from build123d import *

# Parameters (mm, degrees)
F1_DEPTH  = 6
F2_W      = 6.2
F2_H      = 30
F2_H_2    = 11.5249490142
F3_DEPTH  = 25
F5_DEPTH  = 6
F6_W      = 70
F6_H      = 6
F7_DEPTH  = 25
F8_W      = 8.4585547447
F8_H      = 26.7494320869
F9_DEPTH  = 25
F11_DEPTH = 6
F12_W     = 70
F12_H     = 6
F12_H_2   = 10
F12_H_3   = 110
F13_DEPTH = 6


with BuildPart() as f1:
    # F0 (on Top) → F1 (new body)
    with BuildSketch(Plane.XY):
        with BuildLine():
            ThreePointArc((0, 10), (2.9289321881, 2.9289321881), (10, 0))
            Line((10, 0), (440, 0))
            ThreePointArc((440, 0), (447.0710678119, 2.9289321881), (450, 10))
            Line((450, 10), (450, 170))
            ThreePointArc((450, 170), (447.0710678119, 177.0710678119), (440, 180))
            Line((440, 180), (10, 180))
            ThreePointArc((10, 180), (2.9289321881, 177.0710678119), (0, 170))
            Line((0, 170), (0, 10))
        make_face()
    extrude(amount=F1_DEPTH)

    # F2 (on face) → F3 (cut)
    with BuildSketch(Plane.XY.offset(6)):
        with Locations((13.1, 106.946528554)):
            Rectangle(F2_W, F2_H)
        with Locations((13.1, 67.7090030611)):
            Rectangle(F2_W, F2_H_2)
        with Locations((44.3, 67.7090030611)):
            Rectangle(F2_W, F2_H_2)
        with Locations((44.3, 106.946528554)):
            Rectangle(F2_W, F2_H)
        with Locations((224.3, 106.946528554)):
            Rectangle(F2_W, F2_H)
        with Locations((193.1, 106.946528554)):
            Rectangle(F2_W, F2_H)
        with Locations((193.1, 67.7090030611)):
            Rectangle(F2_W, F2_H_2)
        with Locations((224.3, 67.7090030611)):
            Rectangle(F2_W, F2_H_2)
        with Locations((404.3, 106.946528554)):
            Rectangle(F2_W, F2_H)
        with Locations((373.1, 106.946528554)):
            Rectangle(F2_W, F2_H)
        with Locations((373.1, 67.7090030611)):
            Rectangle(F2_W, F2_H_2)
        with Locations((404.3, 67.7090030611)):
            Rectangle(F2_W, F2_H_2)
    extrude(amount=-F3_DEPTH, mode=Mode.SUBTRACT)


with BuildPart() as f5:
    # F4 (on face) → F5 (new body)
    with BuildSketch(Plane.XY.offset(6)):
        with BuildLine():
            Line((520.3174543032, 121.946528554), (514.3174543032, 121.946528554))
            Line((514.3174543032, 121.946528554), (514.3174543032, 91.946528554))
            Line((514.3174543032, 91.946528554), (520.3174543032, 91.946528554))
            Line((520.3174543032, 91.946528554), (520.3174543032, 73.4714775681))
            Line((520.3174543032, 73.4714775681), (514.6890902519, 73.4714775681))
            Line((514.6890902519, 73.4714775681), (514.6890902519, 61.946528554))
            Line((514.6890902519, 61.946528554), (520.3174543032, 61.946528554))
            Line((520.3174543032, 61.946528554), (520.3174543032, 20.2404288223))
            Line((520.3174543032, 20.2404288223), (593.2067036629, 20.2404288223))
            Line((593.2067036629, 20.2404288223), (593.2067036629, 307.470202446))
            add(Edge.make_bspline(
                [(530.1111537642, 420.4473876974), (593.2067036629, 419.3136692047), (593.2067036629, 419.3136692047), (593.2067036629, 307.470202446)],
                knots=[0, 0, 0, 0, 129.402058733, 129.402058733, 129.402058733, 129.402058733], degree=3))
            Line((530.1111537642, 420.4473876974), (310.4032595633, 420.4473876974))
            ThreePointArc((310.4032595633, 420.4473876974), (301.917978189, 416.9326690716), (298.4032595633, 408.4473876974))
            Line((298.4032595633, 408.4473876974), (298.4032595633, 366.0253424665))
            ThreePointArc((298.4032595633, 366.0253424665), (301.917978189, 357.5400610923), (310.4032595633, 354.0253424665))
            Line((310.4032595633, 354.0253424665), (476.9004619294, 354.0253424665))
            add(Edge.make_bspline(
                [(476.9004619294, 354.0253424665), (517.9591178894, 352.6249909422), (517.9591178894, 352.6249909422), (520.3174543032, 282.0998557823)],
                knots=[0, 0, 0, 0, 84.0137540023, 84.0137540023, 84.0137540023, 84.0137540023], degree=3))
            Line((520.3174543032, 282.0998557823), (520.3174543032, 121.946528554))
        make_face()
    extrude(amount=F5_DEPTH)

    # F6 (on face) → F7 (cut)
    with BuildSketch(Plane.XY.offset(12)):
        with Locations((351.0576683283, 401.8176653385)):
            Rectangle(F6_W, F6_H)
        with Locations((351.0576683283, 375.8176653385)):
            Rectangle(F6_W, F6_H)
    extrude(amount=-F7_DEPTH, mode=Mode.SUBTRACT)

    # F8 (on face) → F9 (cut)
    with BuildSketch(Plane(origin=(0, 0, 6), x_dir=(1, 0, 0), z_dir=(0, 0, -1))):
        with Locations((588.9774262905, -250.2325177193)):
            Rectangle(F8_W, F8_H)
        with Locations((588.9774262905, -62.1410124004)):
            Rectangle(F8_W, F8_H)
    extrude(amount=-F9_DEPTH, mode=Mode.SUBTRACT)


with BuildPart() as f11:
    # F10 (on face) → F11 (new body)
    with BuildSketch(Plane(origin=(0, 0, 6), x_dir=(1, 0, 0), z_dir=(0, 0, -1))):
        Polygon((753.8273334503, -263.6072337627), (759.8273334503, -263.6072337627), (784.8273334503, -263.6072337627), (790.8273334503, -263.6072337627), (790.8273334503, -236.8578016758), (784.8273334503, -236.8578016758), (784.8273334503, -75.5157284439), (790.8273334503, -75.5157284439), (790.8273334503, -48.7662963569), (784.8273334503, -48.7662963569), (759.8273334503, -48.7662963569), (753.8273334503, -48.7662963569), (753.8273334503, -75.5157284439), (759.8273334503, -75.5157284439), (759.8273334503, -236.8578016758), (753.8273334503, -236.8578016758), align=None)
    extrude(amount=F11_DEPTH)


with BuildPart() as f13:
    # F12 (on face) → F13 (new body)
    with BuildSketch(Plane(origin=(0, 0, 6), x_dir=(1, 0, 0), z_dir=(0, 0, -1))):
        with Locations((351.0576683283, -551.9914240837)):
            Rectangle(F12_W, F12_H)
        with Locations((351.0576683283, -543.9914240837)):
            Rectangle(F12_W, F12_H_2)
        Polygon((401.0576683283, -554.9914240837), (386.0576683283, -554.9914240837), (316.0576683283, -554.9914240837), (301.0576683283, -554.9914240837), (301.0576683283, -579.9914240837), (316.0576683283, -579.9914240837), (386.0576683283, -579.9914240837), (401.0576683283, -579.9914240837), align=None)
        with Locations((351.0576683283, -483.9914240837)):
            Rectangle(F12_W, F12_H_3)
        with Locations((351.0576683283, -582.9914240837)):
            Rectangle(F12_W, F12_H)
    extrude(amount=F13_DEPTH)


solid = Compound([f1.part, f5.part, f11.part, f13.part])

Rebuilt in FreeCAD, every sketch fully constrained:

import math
import FreeCAD as App
import Part
import Sketcher
from FreeCAD import Vector


def add_polygon(sketch, points):
    """Adds a closed chain of lines whose ends are joined by coincident constraints."""
    first, n = sketch.GeometryCount, len(points)
    for a, b in zip(points, points[1:] + points[:1]):
        sketch.addGeometry(Part.LineSegment(App.Vector(*a, 0), App.Vector(*b, 0)), False)
    for i in range(n):
        sketch.addConstraint(Sketcher.Constraint("Coincident", first + i, 2, first + (i + 1) % n, 1))

doc = App.newDocument("Part")
body = doc.addObject("PartDesign::Body", "Body")

sketch1 = doc.addObject("Sketcher::SketchObject", "Sketch")
body.addObject(sketch1)
sketch1.AttachmentSupport = (doc.XY_Plane, [""])
sketch1.MapMode = "FlatFace"
sketch1.addGeometry(Part.ArcOfCircle(Part.Circle(Vector(10, 10, 0), Vector(0, 0, 1), 10), math.radians(180), math.radians(270)), False)
sketch1.addGeometry(Part.LineSegment(Vector(10, 0, 0), Vector(440, 0, 0)), False)
sketch1.addGeometry(Part.ArcOfCircle(Part.Circle(Vector(440, 10, 0), Vector(0, 0, 1), 10), math.radians(-90), math.radians(0)), False)
sketch1.addGeometry(Part.LineSegment(Vector(450, 10, 0), Vector(450, 170, 0)), False)
sketch1.addGeometry(Part.ArcOfCircle(Part.Circle(Vector(440, 170, 0), Vector(0, 0, 1), 10), math.radians(0), math.radians(90)), False)
sketch1.addGeometry(Part.LineSegment(Vector(440, 180, 0), Vector(10, 180, 0)), False)
sketch1.addGeometry(Part.ArcOfCircle(Part.Circle(Vector(10, 170, 0), Vector(0, 0, 1), 10), math.radians(90), math.radians(180)), False)
sketch1.addGeometry(Part.LineSegment(Vector(0, 170, 0), Vector(0, 10, 0)), False)
sketch1.addConstraint(Sketcher.Constraint("Tangent", 0, 2, 1, 1))
sketch1.addConstraint(Sketcher.Constraint("Tangent", 1, 2, 2, 1))
sketch1.addConstraint(Sketcher.Constraint("Tangent", 2, 2, 3, 1))
sketch1.addConstraint(Sketcher.Constraint("Tangent", 3, 2, 4, 1))
sketch1.addConstraint(Sketcher.Constraint("Tangent", 4, 2, 5, 1))
sketch1.addConstraint(Sketcher.Constraint("Tangent", 5, 2, 6, 1))
sketch1.addConstraint(Sketcher.Constraint("Tangent", 6, 2, 7, 1))
sketch1.addConstraint(Sketcher.Constraint("Tangent", 7, 2, 0, 1))
sketch1.addConstraint(Sketcher.Constraint("Horizontal", 1))
sketch1.addConstraint(Sketcher.Constraint("Vertical", 3))
sketch1.addConstraint(Sketcher.Constraint("Horizontal", 5))
sketch1.addConstraint(Sketcher.Constraint("Vertical", 7))
sketch1.addConstraint(Sketcher.Constraint("Equal", 0, 2))
sketch1.addConstraint(Sketcher.Constraint("Equal", 2, 4))
sketch1.addConstraint(Sketcher.Constraint("Equal", 4, 6))
sketch1.addConstraint(Sketcher.Constraint("PointOnObject", 0, 2, -1))
sketch1.addConstraint(Sketcher.Constraint("PointOnObject", 6, 2, -2))
sketch1.addConstraint(Sketcher.Constraint("Radius", 0, 10.0))
sketch1.addConstraint(Sketcher.Constraint("DistanceX", 1, 1, 1, 2, 430.0))
sketch1.addConstraint(Sketcher.Constraint("DistanceY", 3, 1, 3, 2, 160.0))
pad1 = doc.addObject("PartDesign::Pad", "Pad")
body.addObject(pad1)
pad1.Profile = sketch1
pad1.Length = 6

sketch2 = doc.addObject("Sketcher::SketchObject", "Sketch001")
body.addObject(sketch2)
sketch2.AttachmentSupport = (doc.XY_Plane, [""])
sketch2.MapMode = "FlatFace"
sketch2.AttachmentOffset = App.Placement(Vector(0, 0, 6), App.Rotation())
add_polygon(sketch2, [(10, 122), (10, 92), (16, 92), (16, 122)])
add_polygon(sketch2, [(10, 73), (10, 62), (16, 62), (16, 73)])
add_polygon(sketch2, [(41, 73), (41, 62), (47, 62), (47, 73)])
add_polygon(sketch2, [(41, 122), (41, 92), (47, 92), (47, 122)])
add_polygon(sketch2, [(221, 122), (221, 92), (227, 92), (227, 122)])
add_polygon(sketch2, [(190, 122), (190, 92), (196, 92), (196, 122)])
add_polygon(sketch2, [(190, 73), (190, 62), (196, 62), (196, 73)])
add_polygon(sketch2, [(221, 73), (221, 62), (227, 62), (227, 73)])
add_polygon(sketch2, [(401, 122), (401, 92), (407, 92), (407, 122)])
add_polygon(sketch2, [(370, 122), (370, 92), (376, 92), (376, 122)])
add_polygon(sketch2, [(370, 73), (370, 62), (376, 62), (376, 73)])
add_polygon(sketch2, [(401, 73), (401, 62), (407, 62), (407, 73)])
sketch2.addConstraint(Sketcher.Constraint("Vertical", 0))
sketch2.addConstraint(Sketcher.Constraint("Horizontal", 1))
sketch2.addConstraint(Sketcher.Constraint("Vertical", 2))
sketch2.addConstraint(Sketcher.Constraint("Horizontal", 3))
sketch2.addConstraint(Sketcher.Constraint("Vertical", 4))
sketch2.addConstraint(Sketcher.Constraint("Horizontal", 5))
sketch2.addConstraint(Sketcher.Constraint("Vertical", 6))
sketch2.addConstraint(Sketcher.Constraint("Horizontal", 7))
sketch2.addConstraint(Sketcher.Constraint("Vertical", 8))
sketch2.addConstraint(Sketcher.Constraint("Horizontal", 9))
sketch2.addConstraint(Sketcher.Constraint("Vertical", 10))
sketch2.addConstraint(Sketcher.Constraint("Horizontal", 11))
sketch2.addConstraint(Sketcher.Constraint("Vertical", 12))
sketch2.addConstraint(Sketcher.Constraint("Horizontal", 13))
sketch2.addConstraint(Sketcher.Constraint("Vertical", 14))
sketch2.addConstraint(Sketcher.Constraint("Horizontal", 15))
sketch2.addConstraint(Sketcher.Constraint("Vertical", 16))
sketch2.addConstraint(Sketcher.Constraint("Horizontal", 17))
sketch2.addConstraint(Sketcher.Constraint("Vertical", 18))
sketch2.addConstraint(Sketcher.Constraint("Horizontal", 19))
sketch2.addConstraint(Sketcher.Constraint("Vertical", 20))
sketch2.addConstraint(Sketcher.Constraint("Horizontal", 21))
sketch2.addConstraint(Sketcher.Constraint("Vertical", 22))
sketch2.addConstraint(Sketcher.Constraint("Horizontal", 23))
sketch2.addConstraint(Sketcher.Constraint("Vertical", 24))
sketch2.addConstraint(Sketcher.Constraint("Horizontal", 25))
sketch2.addConstraint(Sketcher.Constraint("Vertical", 26))
sketch2.addConstraint(Sketcher.Constraint("Horizontal", 27))
sketch2.addConstraint(Sketcher.Constraint("Vertical", 28))
sketch2.addConstraint(Sketcher.Constraint("Horizontal", 29))
sketch2.addConstraint(Sketcher.Constraint("Vertical", 30))
sketch2.addConstraint(Sketcher.Constraint("Horizontal", 31))
sketch2.addConstraint(Sketcher.Constraint("Vertical", 32))
sketch2.addConstraint(Sketcher.Constraint("Horizontal", 33))
sketch2.addConstraint(Sketcher.Constraint("Vertical", 34))
sketch2.addConstraint(Sketcher.Constraint("Horizontal", 35))
sketch2.addConstraint(Sketcher.Constraint("Vertical", 36))
sketch2.addConstraint(Sketcher.Constraint("Horizontal", 37))
sketch2.addConstraint(Sketcher.Constraint("Vertical", 38))
sketch2.addConstraint(Sketcher.Constraint("Horizontal", 39))
sketch2.addConstraint(Sketcher.Constraint("Vertical", 40))
sketch2.addConstraint(Sketcher.Constraint("Horizontal", 41))
sketch2.addConstraint(Sketcher.Constraint("Vertical", 42))
sketch2.addConstraint(Sketcher.Constraint("Horizontal", 43))
sketch2.addConstraint(Sketcher.Constraint("Vertical", 44))
sketch2.addConstraint(Sketcher.Constraint("Horizontal", 45))
sketch2.addConstraint(Sketcher.Constraint("Vertical", 46))
sketch2.addConstraint(Sketcher.Constraint("Horizontal", 47))
sketch2.addConstraint(Sketcher.Constraint("Horizontal", 5, 2, 8, 2))
sketch2.addConstraint(Sketcher.Constraint("Horizontal", 7, 2, 10, 2))
sketch2.addConstraint(Sketcher.Constraint("Horizontal", 1, 2, 12, 2))
sketch2.addConstraint(Sketcher.Constraint("Horizontal", 3, 2, 14, 2))
sketch2.addConstraint(Sketcher.Constraint("Horizontal", 13, 2, 16, 2))
sketch2.addConstraint(Sketcher.Constraint("Horizontal", 15, 2, 18, 2))
sketch2.addConstraint(Sketcher.Constraint("Horizontal", 17, 2, 20, 2))
sketch2.addConstraint(Sketcher.Constraint("Horizontal", 19, 2, 22, 2))
sketch2.addConstraint(Sketcher.Constraint("Horizontal", 9, 2, 24, 2))
sketch2.addConstraint(Sketcher.Constraint("Horizontal", 11, 2, 26, 2))
sketch2.addConstraint(Sketcher.Constraint("Horizontal", 25, 2, 28, 2))
sketch2.addConstraint(Sketcher.Constraint("Horizontal", 27, 2, 30, 2))
sketch2.addConstraint(Sketcher.Constraint("Horizontal", 21, 2, 32, 2))
sketch2.addConstraint(Sketcher.Constraint("Horizontal", 23, 2, 34, 2))
sketch2.addConstraint(Sketcher.Constraint("Horizontal", 33, 2, 36, 2))
sketch2.addConstraint(Sketcher.Constraint("Horizontal", 35, 2, 38, 2))
sketch2.addConstraint(Sketcher.Constraint("Horizontal", 29, 2, 40, 2))
sketch2.addConstraint(Sketcher.Constraint("Horizontal", 31, 2, 42, 2))
sketch2.addConstraint(Sketcher.Constraint("Horizontal", 41, 2, 44, 2))
sketch2.addConstraint(Sketcher.Constraint("Horizontal", 43, 2, 46, 2))
sketch2.addConstraint(Sketcher.Constraint("Vertical", 3, 2, 4, 2))
sketch2.addConstraint(Sketcher.Constraint("Vertical", 2, 2, 5, 2))
sketch2.addConstraint(Sketcher.Constraint("Vertical", 11, 2, 12, 2))
sketch2.addConstraint(Sketcher.Constraint("Vertical", 10, 2, 13, 2))
sketch2.addConstraint(Sketcher.Constraint("Vertical", 23, 2, 24, 2))
sketch2.addConstraint(Sketcher.Constraint("Vertical", 22, 2, 25, 2))
sketch2.addConstraint(Sketcher.Constraint("Vertical", 19, 2, 28, 2))
sketch2.addConstraint(Sketcher.Constraint("Vertical", 18, 2, 29, 2))
sketch2.addConstraint(Sketcher.Constraint("Vertical", 39, 2, 40, 2))
sketch2.addConstraint(Sketcher.Constraint("Vertical", 38, 2, 41, 2))
sketch2.addConstraint(Sketcher.Constraint("Vertical", 35, 2, 44, 2))
sketch2.addConstraint(Sketcher.Constraint("Vertical", 34, 2, 45, 2))
sketch2.addConstraint(Sketcher.Constraint("Equal", 7, 9))
sketch2.addConstraint(Sketcher.Constraint("Equal", 15, 17))
sketch2.addConstraint(Sketcher.Constraint("Equal", 19, 21))
sketch2.addConstraint(Sketcher.Constraint("Equal", 31, 33))
sketch2.addConstraint(Sketcher.Constraint("Equal", 35, 37))
sketch2.addConstraint(Sketcher.Constraint("DistanceY", 0, 2, 0, 1, 30.0))
sketch2.addConstraint(Sketcher.Constraint("DistanceX", 1, 1, 1, 2, 6.2))
sketch2.addConstraint(Sketcher.Constraint("DistanceX", -1, 1, 0, 2, 10.0))
sketch2.addConstraint(Sketcher.Constraint("DistanceX", -1, 1, 20, 2, 190.0))
sketch2.addConstraint(Sketcher.Constraint("DistanceX", -1, 1, 36, 2, 370.0))
sketch2.addConstraint(Sketcher.Constraint("DistanceY", 4, 2, 0, 2, 30.0))
sketch2.addConstraint(Sketcher.Constraint("DistanceX", 5, 2, 8, 2, 25.0))
sketch2.addConstraint(Sketcher.Constraint("DistanceX", 12, 2, 16, 2, 180.0))
sketch2.addConstraint(Sketcher.Constraint("DistanceX", 16, 2, 32, 2, 180.0))
sketch2.addConstraint(Sketcher.Constraint("DistanceY", 4, 2, 4, 1, 11.524949))
sketch2.addConstraint(Sketcher.Constraint("DistanceY", -1, 1, 0, 2, 91.946529))
pocket1 = doc.addObject("PartDesign::Pocket", "Pocket")
body.addObject(pocket1)
pocket1.Profile = sketch2
pocket1.Length = 25
body2 = doc.addObject("PartDesign::Body", "Body001")

sketch3 = doc.addObject("Sketcher::SketchObject", "Sketch002")
body2.addObject(sketch3)
sketch3.AttachmentSupport = (doc.getObject("XY_Plane001"), [""])
sketch3.MapMode = "FlatFace"
sketch3.AttachmentOffset = App.Placement(Vector(0, 0, 6), App.Rotation())
sketch3.addGeometry(Part.LineSegment(Vector(520.317454, 121.946529, 0), Vector(514.317454, 121.946529, 0)), False)
sketch3.addGeometry(Part.LineSegment(Vector(514.317454, 121.946529, 0), Vector(514.317454, 91.946529, 0)), False)
sketch3.addGeometry(Part.LineSegment(Vector(514.317454, 91.946529, 0), Vector(520.317454, 91.946529, 0)), False)
sketch3.addGeometry(Part.LineSegment(Vector(520.317454, 91.946529, 0), Vector(520.317454, 73.471478, 0)), False)
sketch3.addGeometry(Part.LineSegment(Vector(520.317454, 73.471478, 0), Vector(514.68909, 73.471478, 0)), False)
sketch3.addGeometry(Part.LineSegment(Vector(514.68909, 73.471478, 0), Vector(514.68909, 61.946529, 0)), False)
sketch3.addGeometry(Part.LineSegment(Vector(514.68909, 61.946529, 0), Vector(520.317454, 61.946529, 0)), False)
sketch3.addGeometry(Part.LineSegment(Vector(520.317454, 61.946529, 0), Vector(520.317454, 20.240429, 0)), False)
sketch3.addGeometry(Part.LineSegment(Vector(520.317454, 20.240429, 0), Vector(593.206704, 20.240429, 0)), False)
sketch3.addGeometry(Part.LineSegment(Vector(593.206704, 20.240429, 0), Vector(593.206704, 307.470202, 0)), False)
sketch3.addGeometry(Part.BSplineCurve([Vector(530.111154, 420.447388, 0), Vector(593.206704, 419.313669, 0), Vector(593.206704, 419.313669, 0), Vector(593.206704, 307.470202, 0)], [4, 4], [0, 129.402058733], False, 3, [1, 1, 1, 1], False), False)
sketch3.addGeometry(Part.LineSegment(Vector(530.111154, 420.447388, 0), Vector(310.40326, 420.447388, 0)), False)
sketch3.addGeometry(Part.ArcOfCircle(Part.Circle(Vector(310.40326, 408.447388, 0), Vector(0, 0, 1), 12), math.radians(90), math.radians(180)), False)
sketch3.addGeometry(Part.LineSegment(Vector(298.40326, 408.447388, 0), Vector(298.40326, 366.025342, 0)), False)
sketch3.addGeometry(Part.ArcOfCircle(Part.Circle(Vector(310.40326, 366.025342, 0), Vector(0, 0, 1), 12), math.radians(180), math.radians(270)), False)
sketch3.addGeometry(Part.LineSegment(Vector(310.40326, 354.025342, 0), Vector(476.900462, 354.025342, 0)), False)
sketch3.addGeometry(Part.BSplineCurve([Vector(476.900462, 354.025342, 0), Vector(517.959118, 352.624991, 0), Vector(517.959118, 352.624991, 0), Vector(520.317454, 282.099856, 0)], [4, 4], [0, 84.013754002], False, 3, [1, 1, 1, 1], False), False)
sketch3.addGeometry(Part.LineSegment(Vector(520.317454, 282.099856, 0), Vector(520.317454, 121.946529, 0)), False)
sketch3.addConstraint(Sketcher.Constraint("Block", 10))
sketch3.addConstraint(Sketcher.Constraint("Block", 16))
sketch3.addConstraint(Sketcher.Constraint("Coincident", 0, 2, 1, 1))
sketch3.addConstraint(Sketcher.Constraint("Coincident", 1, 2, 2, 1))
sketch3.addConstraint(Sketcher.Constraint("Coincident", 2, 2, 3, 1))
sketch3.addConstraint(Sketcher.Constraint("Coincident", 3, 2, 4, 1))
sketch3.addConstraint(Sketcher.Constraint("Coincident", 4, 2, 5, 1))
sketch3.addConstraint(Sketcher.Constraint("Coincident", 5, 2, 6, 1))
sketch3.addConstraint(Sketcher.Constraint("Coincident", 6, 2, 7, 1))
sketch3.addConstraint(Sketcher.Constraint("Coincident", 7, 2, 8, 1))
sketch3.addConstraint(Sketcher.Constraint("Coincident", 8, 2, 9, 1))
sketch3.addConstraint(Sketcher.Constraint("Coincident", 9, 2, 10, 2))
sketch3.addConstraint(Sketcher.Constraint("Coincident", 10, 1, 11, 1))
sketch3.addConstraint(Sketcher.Constraint("Tangent", 11, 2, 12, 1))
sketch3.addConstraint(Sketcher.Constraint("Tangent", 12, 2, 13, 1))
sketch3.addConstraint(Sketcher.Constraint("Tangent", 13, 2, 14, 1))
sketch3.addConstraint(Sketcher.Constraint("Tangent", 14, 2, 15, 1))
sketch3.addConstraint(Sketcher.Constraint("Coincident", 15, 2, 16, 1))
sketch3.addConstraint(Sketcher.Constraint("Coincident", 16, 2, 17, 1))
sketch3.addConstraint(Sketcher.Constraint("Coincident", 17, 2, 0, 1))
sketch3.addConstraint(Sketcher.Constraint("Horizontal", 0))
sketch3.addConstraint(Sketcher.Constraint("Vertical", 1))
sketch3.addConstraint(Sketcher.Constraint("Horizontal", 2))
sketch3.addConstraint(Sketcher.Constraint("Vertical", 3))
sketch3.addConstraint(Sketcher.Constraint("Horizontal", 4))
sketch3.addConstraint(Sketcher.Constraint("Vertical", 5))
sketch3.addConstraint(Sketcher.Constraint("Horizontal", 6))
sketch3.addConstraint(Sketcher.Constraint("Vertical", 7))
sketch3.addConstraint(Sketcher.Constraint("Horizontal", 8))
sketch3.addConstraint(Sketcher.Constraint("Vertical", 9))
sketch3.addConstraint(Sketcher.Constraint("Horizontal", 11))
sketch3.addConstraint(Sketcher.Constraint("Vertical", 13))
sketch3.addConstraint(Sketcher.Constraint("Horizontal", 15))
sketch3.addConstraint(Sketcher.Constraint("Vertical", 17))
sketch3.addConstraint(Sketcher.Constraint("Equal", 12, 14))
sketch3.addConstraint(Sketcher.Constraint("Vertical", 3, 2, 6, 2))
sketch3.addConstraint(Sketcher.Constraint("Vertical", 7, 2, 17, 2))
sketch3.addConstraint(Sketcher.Constraint("Radius", 12, 12.0))
sketch3.addConstraint(Sketcher.Constraint("DistanceX", 0, 2, 0, 1, 6.0))
sketch3.addConstraint(Sketcher.Constraint("DistanceY", 1, 2, 1, 1, 30.0))
sketch3.addConstraint(Sketcher.Constraint("DistanceY", 5, 2, 1, 2, 30.0))
sketch3.addConstraint(Sketcher.Constraint("DistanceY", 7, 2, 7, 1, 41.7061))
sketch3.addConstraint(Sketcher.Constraint("DistanceY", 3, 2, 3, 1, 18.475051))
sketch3.addConstraint(Sketcher.Constraint("DistanceX", 4, 2, 4, 1, 5.628364))
sketch3.addConstraint(Sketcher.Constraint("DistanceX", 11, 2, 11, 1, 219.707894))
sketch3.addConstraint(Sketcher.Constraint("DistanceY", 9, 1, 9, 2, 287.229774))
pad2 = doc.addObject("PartDesign::Pad", "Pad001")
body2.addObject(pad2)
pad2.Profile = sketch3
pad2.Length = 6

sketch4 = doc.addObject("Sketcher::SketchObject", "Sketch003")
body2.addObject(sketch4)
sketch4.AttachmentSupport = (doc.getObject("XY_Plane001"), [""])
sketch4.MapMode = "FlatFace"
sketch4.AttachmentOffset = App.Placement(Vector(0, 0, 12), App.Rotation())
add_polygon(sketch4, [(316, 405), (316, 399), (386, 399), (386, 405)])
add_polygon(sketch4, [(316, 379), (316, 373), (386, 373), (386, 379)])
sketch4.addConstraint(Sketcher.Constraint("Vertical", 0))
sketch4.addConstraint(Sketcher.Constraint("Horizontal", 1))
sketch4.addConstraint(Sketcher.Constraint("Vertical", 2))
sketch4.addConstraint(Sketcher.Constraint("Horizontal", 3))
sketch4.addConstraint(Sketcher.Constraint("Vertical", 4))
sketch4.addConstraint(Sketcher.Constraint("Horizontal", 5))
sketch4.addConstraint(Sketcher.Constraint("Vertical", 6))
sketch4.addConstraint(Sketcher.Constraint("Horizontal", 7))
sketch4.addConstraint(Sketcher.Constraint("Vertical", 3, 2, 4, 2))
sketch4.addConstraint(Sketcher.Constraint("Vertical", 2, 2, 5, 2))
sketch4.addConstraint(Sketcher.Constraint("Equal", 2, 4))
sketch4.addConstraint(Sketcher.Constraint("DistanceX", 1, 1, 1, 2, 70.0))
sketch4.addConstraint(Sketcher.Constraint("DistanceY", 0, 2, 0, 1, 6.0))
sketch4.addConstraint(Sketcher.Constraint("DistanceY", 4, 2, 0, 2, 26.0))
sketch4.addConstraint(Sketcher.Constraint("DistanceX", -1, 1, 0, 2, 316.057668))
sketch4.addConstraint(Sketcher.Constraint("DistanceY", -1, 1, 0, 2, 398.817665))
pocket2 = doc.addObject("PartDesign::Pocket", "Pocket001")
body2.addObject(pocket2)
pocket2.Profile = sketch4
pocket2.Length = 25

sketch5 = doc.addObject("Sketcher::SketchObject", "Sketch004")
body2.addObject(sketch5)
sketch5.AttachmentSupport = (doc.getObject("XY_Plane001"), [""])
sketch5.MapMode = "FlatFace"
sketch5.AttachmentOffset = App.Placement(Vector(0, 0, 6), App.Rotation())
add_polygon(sketch5, [(585, 237), (585, 264), (593, 264), (593, 237)])
add_polygon(sketch5, [(585, 49), (585, 76), (593, 76), (593, 49)])
sketch5.addConstraint(Sketcher.Constraint("Vertical", 0))
sketch5.addConstraint(Sketcher.Constraint("Horizontal", 1))
sketch5.addConstraint(Sketcher.Constraint("Vertical", 2))
sketch5.addConstraint(Sketcher.Constraint("Horizontal", 3))
sketch5.addConstraint(Sketcher.Constraint("Vertical", 4))
sketch5.addConstraint(Sketcher.Constraint("Horizontal", 5))
sketch5.addConstraint(Sketcher.Constraint("Vertical", 6))
sketch5.addConstraint(Sketcher.Constraint("Horizontal", 7))
sketch5.addConstraint(Sketcher.Constraint("Vertical", 3, 2, 4, 2))
sketch5.addConstraint(Sketcher.Constraint("Vertical", 2, 2, 5, 2))
sketch5.addConstraint(Sketcher.Constraint("Equal", 2, 4))
sketch5.addConstraint(Sketcher.Constraint("DistanceY", -1, 1, 2, 2, 236.857802))
sketch5.addConstraint(Sketcher.Constraint("DistanceX", 1, 1, 1, 2, 8.458555))
sketch5.addConstraint(Sketcher.Constraint("DistanceY", 0, 1, 0, 2, 26.749432))
sketch5.addConstraint(Sketcher.Constraint("DistanceX", -1, 1, 0, 2, 584.748149))
sketch5.addConstraint(Sketcher.Constraint("DistanceY", -1, 1, 4, 2, 75.515728))
pocket3 = doc.addObject("PartDesign::Pocket", "Pocket002")
body2.addObject(pocket3)
pocket3.Profile = sketch5
pocket3.Length = 25
pocket3.Reversed = True
body3 = doc.addObject("PartDesign::Body", "Body002")

sketch6 = doc.addObject("Sketcher::SketchObject", "Sketch005")
body3.addObject(sketch6)
sketch6.AttachmentSupport = (doc.getObject("XY_Plane002"), [""])
sketch6.MapMode = "FlatFace"
sketch6.AttachmentOffset = App.Placement(Vector(0, 0, 6), App.Rotation())
add_polygon(sketch6, [(754, 264), (791, 264), (791, 237), (785, 237), (785, 76), (791, 76), (791, 49), (754, 49), (754, 76), (760, 76), (760, 237), (754, 237)])
sketch6.addConstraint(Sketcher.Constraint("Horizontal", 0))
sketch6.addConstraint(Sketcher.Constraint("Vertical", 1))
sketch6.addConstraint(Sketcher.Constraint("Horizontal", 2))
sketch6.addConstraint(Sketcher.Constraint("Vertical", 3))
sketch6.addConstraint(Sketcher.Constraint("Horizontal", 4))
sketch6.addConstraint(Sketcher.Constraint("Vertical", 5))
sketch6.addConstraint(Sketcher.Constraint("Horizontal", 6))
sketch6.addConstraint(Sketcher.Constraint("Vertical", 7))
sketch6.addConstraint(Sketcher.Constraint("Horizontal", 8))
sketch6.addConstraint(Sketcher.Constraint("Vertical", 9))
sketch6.addConstraint(Sketcher.Constraint("Horizontal", 10))
sketch6.addConstraint(Sketcher.Constraint("Vertical", 11))
sketch6.addConstraint(Sketcher.Constraint("Horizontal", 4, 2, 7, 2))
sketch6.addConstraint(Sketcher.Constraint("Horizontal", 2, 2, 9, 2))
sketch6.addConstraint(Sketcher.Constraint("Vertical", 1, 2, 4, 2))
sketch6.addConstraint(Sketcher.Constraint("Vertical", 7, 2, 10, 2))
sketch6.addConstraint(Sketcher.Constraint("Equal", 4, 8))
sketch6.addConstraint(Sketcher.Constraint("Equal", 1, 5))
sketch6.addConstraint(Sketcher.Constraint("DistanceX", 0, 1, 0, 2, 37.0))
sketch6.addConstraint(Sketcher.Constraint("DistanceX", 2, 2, 2, 1, 6.0))
sketch6.addConstraint(Sketcher.Constraint("DistanceY", -1, 1, 1, 2, 236.857802))
sketch6.addConstraint(Sketcher.Constraint("DistanceY", 1, 2, 1, 1, 26.749432))
sketch6.addConstraint(Sketcher.Constraint("DistanceY", 3, 2, 3, 1, 161.342073))
sketch6.addConstraint(Sketcher.Constraint("DistanceX", -1, 1, 0, 2, 790.827333))
pad3 = doc.addObject("PartDesign::Pad", "Pad002")
body3.addObject(pad3)
pad3.Profile = sketch6
pad3.Length = 6
pad3.Reversed = True
body4 = doc.addObject("PartDesign::Body", "Body003")

sketch7 = doc.addObject("Sketcher::SketchObject", "Sketch006")
body4.addObject(sketch7)
sketch7.AttachmentSupport = (doc.getObject("XY_Plane003"), [""])
sketch7.MapMode = "FlatFace"
sketch7.AttachmentOffset = App.Placement(Vector(0, 0, 6), App.Rotation())
add_polygon(sketch7, [(386, 555), (386, 429), (316, 429), (316, 555), (301, 555), (301, 580), (316, 580), (316, 586), (386, 586), (386, 580), (401, 580), (401, 555)])
sketch7.addConstraint(Sketcher.Constraint("Vertical", 0))
sketch7.addConstraint(Sketcher.Constraint("Horizontal", 1))
sketch7.addConstraint(Sketcher.Constraint("Vertical", 2))
sketch7.addConstraint(Sketcher.Constraint("Horizontal", 3))
sketch7.addConstraint(Sketcher.Constraint("Vertical", 4))
sketch7.addConstraint(Sketcher.Constraint("Horizontal", 5))
sketch7.addConstraint(Sketcher.Constraint("Vertical", 6))
sketch7.addConstraint(Sketcher.Constraint("Horizontal", 7))
sketch7.addConstraint(Sketcher.Constraint("Vertical", 8))
sketch7.addConstraint(Sketcher.Constraint("Horizontal", 9))
sketch7.addConstraint(Sketcher.Constraint("Vertical", 10))
sketch7.addConstraint(Sketcher.Constraint("Horizontal", 11))
sketch7.addConstraint(Sketcher.Constraint("Horizontal", 5, 2, 8, 2))
sketch7.addConstraint(Sketcher.Constraint("Horizontal", 3, 2, 10, 2))
sketch7.addConstraint(Sketcher.Constraint("Vertical", 2, 2, 5, 2))
sketch7.addConstraint(Sketcher.Constraint("Vertical", 0, 2, 7, 2))
sketch7.addConstraint(Sketcher.Constraint("Equal", 5, 9))
sketch7.addConstraint(Sketcher.Constraint("DistanceX", 1, 2, 1, 1, 70.0))
sketch7.addConstraint(Sketcher.Constraint("DistanceX", 3, 2, 3, 1, 15.0))
sketch7.addConstraint(Sketcher.Constraint("DistanceY", 0, 2, 0, 1, 126.0))
sketch7.addConstraint(Sketcher.Constraint("DistanceY", 4, 1, 4, 2, 25.0))
sketch7.addConstraint(Sketcher.Constraint("DistanceY", 6, 1, 6, 2, 6.0))
sketch7.addConstraint(Sketcher.Constraint("DistanceX", -1, 1, 0, 2, 386.057668))
sketch7.addConstraint(Sketcher.Constraint("DistanceY", -1, 1, 0, 2, 428.991424))
pad4 = doc.addObject("PartDesign::Pad", "Pad003")
body4.addObject(pad4)
pad4.Profile = sketch7
pad4.Length = 6
pad4.Reversed = True

doc.recompute()
